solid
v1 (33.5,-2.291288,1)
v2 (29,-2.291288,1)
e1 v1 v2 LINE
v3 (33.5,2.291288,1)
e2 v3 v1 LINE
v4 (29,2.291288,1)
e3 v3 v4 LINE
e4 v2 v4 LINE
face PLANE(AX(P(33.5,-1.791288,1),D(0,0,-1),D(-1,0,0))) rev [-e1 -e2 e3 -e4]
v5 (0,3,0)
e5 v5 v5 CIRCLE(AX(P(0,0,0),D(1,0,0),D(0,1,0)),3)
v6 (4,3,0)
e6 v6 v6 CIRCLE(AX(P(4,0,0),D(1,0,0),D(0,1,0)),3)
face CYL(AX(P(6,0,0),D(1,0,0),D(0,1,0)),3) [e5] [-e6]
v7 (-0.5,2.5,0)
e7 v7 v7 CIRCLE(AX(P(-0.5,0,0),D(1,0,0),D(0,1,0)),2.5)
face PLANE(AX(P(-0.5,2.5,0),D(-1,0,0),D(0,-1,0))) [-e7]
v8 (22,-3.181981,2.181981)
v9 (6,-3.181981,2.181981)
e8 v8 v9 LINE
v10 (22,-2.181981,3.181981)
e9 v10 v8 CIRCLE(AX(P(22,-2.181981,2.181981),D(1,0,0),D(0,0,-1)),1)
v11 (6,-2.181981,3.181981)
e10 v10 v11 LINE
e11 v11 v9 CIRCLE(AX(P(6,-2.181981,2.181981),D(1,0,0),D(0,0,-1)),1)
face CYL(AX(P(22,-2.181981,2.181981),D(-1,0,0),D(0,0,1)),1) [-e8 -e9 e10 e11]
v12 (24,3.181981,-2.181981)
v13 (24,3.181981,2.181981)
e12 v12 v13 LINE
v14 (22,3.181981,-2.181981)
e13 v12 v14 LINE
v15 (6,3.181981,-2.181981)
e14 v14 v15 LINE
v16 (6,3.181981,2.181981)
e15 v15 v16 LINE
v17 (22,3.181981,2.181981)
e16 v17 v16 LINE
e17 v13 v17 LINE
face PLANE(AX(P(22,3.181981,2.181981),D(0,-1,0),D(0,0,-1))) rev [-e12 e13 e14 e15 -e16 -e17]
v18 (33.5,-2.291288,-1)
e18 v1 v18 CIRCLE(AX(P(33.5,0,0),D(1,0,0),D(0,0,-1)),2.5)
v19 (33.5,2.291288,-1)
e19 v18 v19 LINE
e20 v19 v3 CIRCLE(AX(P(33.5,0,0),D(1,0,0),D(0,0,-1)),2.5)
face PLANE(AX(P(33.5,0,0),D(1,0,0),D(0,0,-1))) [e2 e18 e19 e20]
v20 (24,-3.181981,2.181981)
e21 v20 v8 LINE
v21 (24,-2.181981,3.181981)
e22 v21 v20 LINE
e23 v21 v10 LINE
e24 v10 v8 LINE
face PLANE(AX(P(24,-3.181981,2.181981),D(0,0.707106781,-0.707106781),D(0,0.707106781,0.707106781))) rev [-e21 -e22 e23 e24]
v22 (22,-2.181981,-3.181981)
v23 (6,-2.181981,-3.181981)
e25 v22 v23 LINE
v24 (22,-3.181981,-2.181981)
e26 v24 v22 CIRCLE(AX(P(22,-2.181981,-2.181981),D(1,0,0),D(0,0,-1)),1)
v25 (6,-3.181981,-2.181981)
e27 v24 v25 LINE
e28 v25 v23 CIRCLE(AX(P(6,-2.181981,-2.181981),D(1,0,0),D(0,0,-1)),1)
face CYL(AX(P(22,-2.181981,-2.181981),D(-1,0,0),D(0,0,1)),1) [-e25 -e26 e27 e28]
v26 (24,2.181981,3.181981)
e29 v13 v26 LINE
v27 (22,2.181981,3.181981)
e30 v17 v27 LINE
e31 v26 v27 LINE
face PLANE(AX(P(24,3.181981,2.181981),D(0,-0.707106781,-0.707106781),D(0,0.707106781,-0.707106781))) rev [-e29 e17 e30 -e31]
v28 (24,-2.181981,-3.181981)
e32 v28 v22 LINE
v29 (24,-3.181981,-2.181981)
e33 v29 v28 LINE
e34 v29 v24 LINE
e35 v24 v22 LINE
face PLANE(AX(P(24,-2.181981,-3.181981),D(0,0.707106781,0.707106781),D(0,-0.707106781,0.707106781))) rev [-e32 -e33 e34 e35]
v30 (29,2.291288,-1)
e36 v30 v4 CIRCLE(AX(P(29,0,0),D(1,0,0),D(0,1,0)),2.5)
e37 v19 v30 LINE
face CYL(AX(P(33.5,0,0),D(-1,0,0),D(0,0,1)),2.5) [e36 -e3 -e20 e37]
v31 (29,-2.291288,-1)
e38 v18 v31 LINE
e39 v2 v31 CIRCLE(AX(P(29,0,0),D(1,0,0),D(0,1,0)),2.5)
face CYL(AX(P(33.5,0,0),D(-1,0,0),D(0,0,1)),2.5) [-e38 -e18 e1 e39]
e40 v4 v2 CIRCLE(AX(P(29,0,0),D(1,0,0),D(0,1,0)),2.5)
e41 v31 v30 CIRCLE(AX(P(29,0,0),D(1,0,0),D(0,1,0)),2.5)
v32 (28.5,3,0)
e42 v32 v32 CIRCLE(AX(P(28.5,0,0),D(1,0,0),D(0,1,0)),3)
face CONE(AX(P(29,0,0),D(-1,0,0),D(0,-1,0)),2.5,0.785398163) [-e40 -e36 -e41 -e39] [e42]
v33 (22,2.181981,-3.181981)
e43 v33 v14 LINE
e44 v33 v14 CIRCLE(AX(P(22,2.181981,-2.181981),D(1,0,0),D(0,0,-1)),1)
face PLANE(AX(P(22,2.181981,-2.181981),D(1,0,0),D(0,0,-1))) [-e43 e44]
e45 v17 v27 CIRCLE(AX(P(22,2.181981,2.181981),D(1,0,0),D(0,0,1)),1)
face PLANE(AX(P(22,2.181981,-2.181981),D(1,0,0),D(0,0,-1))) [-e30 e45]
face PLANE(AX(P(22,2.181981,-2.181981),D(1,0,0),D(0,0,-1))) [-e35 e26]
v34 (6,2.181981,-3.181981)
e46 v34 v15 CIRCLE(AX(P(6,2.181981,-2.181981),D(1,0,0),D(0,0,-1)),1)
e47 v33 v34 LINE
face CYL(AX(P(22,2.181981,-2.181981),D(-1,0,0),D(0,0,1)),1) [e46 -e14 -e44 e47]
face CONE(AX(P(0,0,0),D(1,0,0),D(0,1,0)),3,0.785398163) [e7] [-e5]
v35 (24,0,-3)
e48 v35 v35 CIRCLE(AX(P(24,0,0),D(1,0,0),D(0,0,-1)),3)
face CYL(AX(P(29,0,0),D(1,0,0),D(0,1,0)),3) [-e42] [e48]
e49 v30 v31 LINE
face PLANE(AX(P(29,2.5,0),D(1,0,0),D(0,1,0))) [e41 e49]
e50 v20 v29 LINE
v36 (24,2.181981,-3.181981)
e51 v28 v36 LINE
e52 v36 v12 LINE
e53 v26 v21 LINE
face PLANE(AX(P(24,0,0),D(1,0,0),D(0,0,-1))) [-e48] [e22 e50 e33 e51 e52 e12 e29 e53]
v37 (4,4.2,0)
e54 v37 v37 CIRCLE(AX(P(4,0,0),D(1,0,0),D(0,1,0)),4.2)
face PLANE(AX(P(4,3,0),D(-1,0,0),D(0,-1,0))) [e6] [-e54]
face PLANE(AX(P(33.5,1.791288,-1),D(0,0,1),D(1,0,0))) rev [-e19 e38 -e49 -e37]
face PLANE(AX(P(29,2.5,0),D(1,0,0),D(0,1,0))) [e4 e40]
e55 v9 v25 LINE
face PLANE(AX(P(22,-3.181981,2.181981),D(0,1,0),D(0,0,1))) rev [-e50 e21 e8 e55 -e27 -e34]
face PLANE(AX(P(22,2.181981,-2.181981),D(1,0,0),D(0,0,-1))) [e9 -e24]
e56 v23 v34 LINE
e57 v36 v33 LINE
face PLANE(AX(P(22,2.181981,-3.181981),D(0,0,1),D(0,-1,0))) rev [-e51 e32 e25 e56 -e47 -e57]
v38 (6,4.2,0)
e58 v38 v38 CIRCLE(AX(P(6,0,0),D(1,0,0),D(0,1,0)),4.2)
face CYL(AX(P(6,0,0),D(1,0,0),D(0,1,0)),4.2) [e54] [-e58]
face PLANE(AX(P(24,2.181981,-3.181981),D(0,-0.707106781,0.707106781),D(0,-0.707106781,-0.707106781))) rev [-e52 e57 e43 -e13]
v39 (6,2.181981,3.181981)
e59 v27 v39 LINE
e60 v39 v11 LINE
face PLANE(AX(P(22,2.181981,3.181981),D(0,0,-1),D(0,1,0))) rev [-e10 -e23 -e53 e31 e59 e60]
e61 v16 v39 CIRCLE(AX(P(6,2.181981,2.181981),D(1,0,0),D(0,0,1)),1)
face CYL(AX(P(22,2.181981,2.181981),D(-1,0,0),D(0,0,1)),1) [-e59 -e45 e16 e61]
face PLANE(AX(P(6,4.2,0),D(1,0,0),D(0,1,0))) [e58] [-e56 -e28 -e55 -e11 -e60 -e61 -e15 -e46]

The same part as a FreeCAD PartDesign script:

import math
import FreeCAD as App
import Part
import Sketcher

V = App.Vector
Q = App.Units.Quantity

doc = App.newDocument("Part")
params = doc.addObject("Spreadsheet::Sheet", "Params")
for row, (alias, value) in enumerate([
    ("sketch1_width", "4 mm"),
    ("sketch1_width2", "2 mm"),
    ("sketch1_width3", "6.5 mm"),
    ("sketch1_height", "2.5 mm"),
    ("sketch1_height2", "4.2 mm"),
    ("revolution_angle", "360 deg"),
    ("sketch2_radius", "1 mm"),
    ("pad1_length", "16 mm"),
    ("pad2_length", "2 mm"),
    ("sketch4_width", "5 mm"),
    ("sketch4_height", "3 mm"),
    ("sketch4_width2", "4.5 mm"),
    ("revolution2_angle", "360 deg"),
    ("sketch5_radius", "2.5 mm"),
    ("pad3_length", "5 mm"),
], start=1):
    params.set(f"A{row}", alias)
    params.set(f"B{row}", "=" + value)
    params.setAlias(f"B{row}", alias)

body = doc.addObject("PartDesign::Body", "Body")

# Sketch on XY plane
sketch1 = body.newObject("Sketcher::SketchObject", "Sketch")
sketch1.AttachmentSupport = (doc.getObject("XY_Plane"), [""])
sketch1.MapMode = "FlatFace"
sketch1.addGeometry([
    Part.LineSegment(V(4, 3, 0), V(0, 3, 0)),  # 0
    Part.LineSegment(V(0, 3, 0), V(-0.5, 2.5, 0)),  # 1
    Part.LineSegment(V(-0.5, 2.5, 0), V(-0.5, 0, 0)),  # 2
    Part.LineSegment(V(-0.5, 0, 0), V(6, 0, 0)),  # 3
    Part.LineSegment(V(6, 0, 0), V(6, 4.2, 0)),  # 4
    Part.LineSegment(V(6, 4.2, 0), V(4, 4.2, 0)),  # 5
    Part.LineSegment(V(4, 4.2, 0), V(4, 3, 0)),  # 6
], False)
sketch1.addConstraint([
    Sketcher.Constraint("Coincident", 0, 2, 1, 1),
    Sketcher.Constraint("Coincident", 1, 2, 2, 1),
    Sketcher.Constraint("Coincident", 2, 2, 3, 1),
    Sketcher.Constraint("Coincident", 3, 2, 4, 1),
    Sketcher.Constraint("Coincident", 4, 2, 5, 1),
    Sketcher.Constraint("Coincident", 5, 2, 6, 1),
    Sketcher.Constraint("Coincident", 6, 2, 0, 1),
    Sketcher.Constraint("Horizontal", 0),
    Sketcher.Constraint("Vertical", 2),
    Sketcher.Constraint("Horizontal", 3),
    Sketcher.Constraint("Vertical", 4),
    Sketcher.Constraint("Horizontal", 5),
    Sketcher.Constraint("Vertical", 6),
    Sketcher.Constraint("PointOnObject", 0, 2, -2),
    Sketcher.Constraint("PointOnObject", 2, 2, -1),
    Sketcher.Constraint("DistanceX", 0, 2, 0, 1, Q("4 mm")),
    Sketcher.Constraint("DistanceX", 5, 2, 5, 1, Q("2 mm")),
    Sketcher.Constraint("Angle", 1, Q("-135 deg")),
    Sketcher.Constraint("DistanceX", 3, 1, 3, 2, Q("6.5 mm")),
    Sketcher.Constraint("DistanceY", 2, 2, 2, 1, Q("2.5 mm")),
    Sketcher.Constraint("DistanceY", 4, 1, 4, 2, Q("4.2 mm")),
])
sketch1.setExpression("Constraints[15]", "Params.sketch1_width")
sketch1.setExpression("Constraints[16]", "Params.sketch1_width2")
sketch1.setExpression("Constraints[18]", "Params.sketch1_width3")
sketch1.setExpression("Constraints[19]", "Params.sketch1_height")
sketch1.setExpression("Constraints[20]", "Params.sketch1_height2")
revolution = body.newObject("PartDesign::Revolution", "Revolution")
revolution.Profile = sketch1
revolution.ReferenceAxis = (sketch1, ["H_Axis"])
revolution.setExpression("Angle", "Params.revolution_angle")

# Sketch on YZ plane
sketch2 = body.newObject("Sketcher::SketchObject", "Sketch001")
sketch2.AttachmentSupport = (doc.getObject("YZ_Plane"), [""])
sketch2.MapMode = "FlatFace"
sketch2.AttachmentOffset = App.Placement(V(0, 0, 6), App.Rotation())
sketch2.addGeometry([
    Part.LineSegment(V(3.2, -2.2, 0), V(3.2, 2.2, 0)),  # 0
    Part.ArcOfCircle(Part.Circle(V(2.2, 2.2, 0), V(0, 0, 1), 1), math.radians(0), math.radians(90)),  # 1
    Part.LineSegment(V(2.2, 3.2, 0), V(-2.2, 3.2, 0)),  # 2
    Part.ArcOfCircle(Part.Circle(V(-2.2, 2.2, 0), V(0, 0, 1), 1), math.radians(90), math.radians(180)),  # 3
    Part.LineSegment(V(-3.2, 2.2, 0), V(-3.2, -2.2, 0)),  # 4
    Part.ArcOfCircle(Part.Circle(V(-2.2, -2.2, 0), V(0, 0, 1), 1), math.radians(180), math.radians(270)),  # 5
    Part.LineSegment(V(-2.2, -3.2, 0), V(2.2, -3.2, 0)),  # 6
    Part.ArcOfCircle(Part.Circle(V(2.2, -2.2, 0), V(0, 0, 1), 1), math.radians(-90), math.radians(0)),  # 7
], False)
sketch2.addConstraint([
    Sketcher.Constraint("Tangent", 0, 2, 1, 1),
    Sketcher.Constraint("Tangent", 1, 2, 2, 1),
    Sketcher.Constraint("Tangent", 2, 2, 3, 1),
    Sketcher.Constraint("Tangent", 3, 2, 4, 1),
    Sketcher.Constraint("Tangent", 4, 2, 5, 1),
    Sketcher.Constraint("Tangent", 5, 2, 6, 1),
    Sketcher.Constraint("Tangent", 6, 2, 7, 1),
    Sketcher.Constraint("Tangent", 7, 2, 0, 1),
    Sketcher.Constraint("Vertical", 0),
    Sketcher.Constraint("Horizontal", 2),
    Sketcher.Constraint("Vertical", 4),
    Sketcher.Constraint("Horizontal", 6),
    Sketcher.Constraint("Equal", 1, 3),
    Sketcher.Constraint("Equal", 3, 5),
    Sketcher.Constraint("Equal", 5, 7),
    Sketcher.Constraint("Symmetric", 1, 3, 5, 3, -1, 1),
    Sketcher.Constraint("Equal", 6, 0),
    Sketcher.Constraint("Radius", 1, Q("1 mm")),
    Sketcher.Constraint("DistanceX", 2, 2, 2, 1, Q("4.363961 mm")),
])
sketch2.setExpression("Constraints[17]", "Params.sketch2_radius")
pad1 = body.newObject("PartDesign::Pad", "Pad")
pad1.Profile = sketch2
pad1.setExpression("Length", "Params.pad1_length")

# Sketch on YZ plane
sketch3 = body.newObject("Sketcher::SketchObject", "Sketch002")
sketch3.AttachmentSupport = (doc.getObject("YZ_Plane"), [""])
sketch3.MapMode = "FlatFace"
sketch3.AttachmentOffset = App.Placement(V(0, 0, 22), App.Rotation())
sketch3.addGeometry([
    Part.LineSegment(V(2.2, -3.2, 0), V(3.2, -2.2, 0)),  # 0
    Part.LineSegment(V(3.2, -2.2, 0), V(3.2, 2.2, 0)),  # 1
    Part.LineSegment(V(3.2, 2.2, 0), V(2.2, 3.2, 0)),  # 2
    Part.LineSegment(V(2.2, 3.2, 0), V(-2.2, 3.2, 0)),  # 3
    Part.LineSegment(V(-2.2, 3.2, 0), V(-3.2, 2.2, 0)),  # 4
    Part.LineSegment(V(-3.2, 2.2, 0), V(-3.2, -2.2, 0)),  # 5
    Part.LineSegment(V(-3.2, -2.2, 0), V(-2.2, -3.2, 0)),  # 6
    Part.LineSegment(V(-2.2, -3.2, 0), V(2.2, -3.2, 0)),  # 7
], False)
sketch3.addConstraint([
    Sketcher.Constraint("Coincident", 0, 2, 1, 1),
    Sketcher.Constraint("Coincident", 1, 2, 2, 1),
    Sketcher.Constraint("Coincident", 2, 2, 3, 1),
    Sketcher.Constraint("Coincident", 3, 2, 4, 1),
    Sketcher.Constraint("Coincident", 4, 2, 5, 1),
    Sketcher.Constraint("Coincident", 5, 2, 6, 1),
    Sketcher.Constraint("Coincident", 6, 2, 7, 1),
    Sketcher.Constraint("Coincident", 7, 2, 0, 1),
    Sketcher.Constraint("Vertical", 1),
    Sketcher.Constraint("Horizontal", 3),
    Sketcher.Constraint("Vertical", 5),
    Sketcher.Constraint("Horizontal", 7),
    Sketcher.Constraint("Symmetric", 0, 2, 4, 2, -1, 1),
    Sketcher.Constraint("Symmetric", 2, 2, 6, 2, -1, 1),
    Sketcher.Constraint("Perpendicular", 0, 2),
    Sketcher.Constraint("Perpendicular", 2, 4),
    Sketcher.Constraint("Perpendicular", 4, 6),
    Sketcher.Constraint("Horizontal", 1, 2, 4, 2),
    Sketcher.Constraint("Vertical", 3, 2, 6, 2),
    Sketcher.Constraint("Equal", 7, 1),
    Sketcher.Constraint("DistanceX", 2, 2, 1, 2, Q("1 mm")),
    Sketcher.Constraint("DistanceX", 3, 2, 3, 1, Q("4.363961 mm")),
])
pad2 = body.newObject("PartDesign::Pad", "Pad001")
pad2.Profile = sketch3
pad2.setExpression("Length", "Params.pad2_length")

# Sketch on XY plane
sketch4 = body.newObject("Sketcher::SketchObject", "Sketch003")
sketch4.AttachmentSupport = (doc.getObject("XY_Plane"), [""])
sketch4.MapMode = "FlatFace"
sketch4.addGeometry([
    Part.LineSegment(V(29, 2.5, 0), V(28.5, 3, 0)),  # 0
    Part.LineSegment(V(28.5, 3, 0), V(24, 3, 0)),  # 1
    Part.LineSegment(V(24, 3, 0), V(24, 0, 0)),  # 2
    Part.LineSegment(V(24, 0, 0), V(29, 0, 0)),  # 3
    Part.LineSegment(V(29, 0, 0), V(29, 2.5, 0)),  # 4
], False)
sketch4.addConstraint([
    Sketcher.Constraint("Coincident", 0, 2, 1, 1),
    Sketcher.Constraint("Coincident", 1, 2, 2, 1),
    Sketcher.Constraint("Coincident", 2, 2, 3, 1),
    Sketcher.Constraint("Coincident", 3, 2, 4, 1),
    Sketcher.Constraint("Coincident", 4, 2, 0, 1),
    Sketcher.Constraint("Horizontal", 1),
    Sketcher.Constraint("Vertical", 2),
    Sketcher.Constraint("Horizontal", 3),
    Sketcher.Constraint("Vertical", 4),
    Sketcher.Constraint("PointOnObject", 2, 2, -1),
    Sketcher.Constraint("DistanceX", 3, 1, 3, 2, Q("5 mm")),
    Sketcher.Constraint("DistanceY", 2, 2, 2, 1, Q("3 mm")),
    Sketcher.Constraint("Angle", 0, Q("135 deg")),
    Sketcher.Constraint("DistanceX", 1, 2, 1, 1, Q("4.5 mm")),
    Sketcher.Constraint("DistanceX", -1, 1, 1, 2, Q("24 mm")),
])
sketch4.setExpression("Constraints[10]", "Params.sketch4_width")
sketch4.setExpression("Constraints[11]", "Params.sketch4_height")
sketch4.setExpression("Constraints[13]", "Params.sketch4_width2")
revolution2 = body.newObject("PartDesign::Revolution", "Revolution001")
revolution2.Profile = sketch4
revolution2.ReferenceAxis = (sketch4, ["H_Axis"])
revolution2.setExpression("Angle", "Params.revolution2_angle")

# Sketch on YZ plane
sketch5 = body.newObject("Sketcher::SketchObject", "Sketch004")
sketch5.AttachmentSupport = (doc.getObject("YZ_Plane"), [""])
sketch5.MapMode = "FlatFace"
sketch5.AttachmentOffset = App.Placement(V(0, 0, 28.5), App.Rotation())
sketch5.addGeometry([
    Part.ArcOfCircle(Part.Circle(V(0, 0, 0), V(0, 0, 1), 2.5), math.radians(156), math.radians(204)),
    Part.LineSegment(V(-2.3, -1, 0), V(2.3, -1, 0)),
    Part.ArcOfCircle(Part.Circle(V(0, 0, 0), V(0, 0, 1), 2.5), math.radians(-24), math.radians(24)),
    Part.LineSegment(V(2.3, 1, 0), V(-2.3, 1, 0)),
], False)
sketch5.addConstraint([
    Sketcher.Constraint("Coincident", 0, 2, 1, 1),
    Sketcher.Constraint("Coincident", 1, 2, 2, 1),
    Sketcher.Constraint("Coincident", 2, 2, 3, 1),
    Sketcher.Constraint("Coincident", 3, 2, 0, 1),
    Sketcher.Constraint("Horizontal", 1),
    Sketcher.Constraint("Horizontal", 3),
    Sketcher.Constraint("Coincident", 0, 3, -1, 1),
    Sketcher.Constraint("Coincident", 2, 3, -1, 1),
    Sketcher.Constraint("Equal", 0, 2),
    Sketcher.Constraint("Vertical", 1, 2, 2, 2),
    Sketcher.Constraint("Radius", 0, Q("2.5 mm")),
    Sketcher.Constraint("DistanceY", 0, 2, -1, 1, Q("1 mm")),
])
sketch5.setExpression("Constraints[10]", "Params.sketch5_radius")
pad3 = body.newObject("PartDesign::Pad", "Pad002")
pad3.Profile = sketch5
pad3.setExpression("Length", "Params.pad3_length")

doc.recompute()
